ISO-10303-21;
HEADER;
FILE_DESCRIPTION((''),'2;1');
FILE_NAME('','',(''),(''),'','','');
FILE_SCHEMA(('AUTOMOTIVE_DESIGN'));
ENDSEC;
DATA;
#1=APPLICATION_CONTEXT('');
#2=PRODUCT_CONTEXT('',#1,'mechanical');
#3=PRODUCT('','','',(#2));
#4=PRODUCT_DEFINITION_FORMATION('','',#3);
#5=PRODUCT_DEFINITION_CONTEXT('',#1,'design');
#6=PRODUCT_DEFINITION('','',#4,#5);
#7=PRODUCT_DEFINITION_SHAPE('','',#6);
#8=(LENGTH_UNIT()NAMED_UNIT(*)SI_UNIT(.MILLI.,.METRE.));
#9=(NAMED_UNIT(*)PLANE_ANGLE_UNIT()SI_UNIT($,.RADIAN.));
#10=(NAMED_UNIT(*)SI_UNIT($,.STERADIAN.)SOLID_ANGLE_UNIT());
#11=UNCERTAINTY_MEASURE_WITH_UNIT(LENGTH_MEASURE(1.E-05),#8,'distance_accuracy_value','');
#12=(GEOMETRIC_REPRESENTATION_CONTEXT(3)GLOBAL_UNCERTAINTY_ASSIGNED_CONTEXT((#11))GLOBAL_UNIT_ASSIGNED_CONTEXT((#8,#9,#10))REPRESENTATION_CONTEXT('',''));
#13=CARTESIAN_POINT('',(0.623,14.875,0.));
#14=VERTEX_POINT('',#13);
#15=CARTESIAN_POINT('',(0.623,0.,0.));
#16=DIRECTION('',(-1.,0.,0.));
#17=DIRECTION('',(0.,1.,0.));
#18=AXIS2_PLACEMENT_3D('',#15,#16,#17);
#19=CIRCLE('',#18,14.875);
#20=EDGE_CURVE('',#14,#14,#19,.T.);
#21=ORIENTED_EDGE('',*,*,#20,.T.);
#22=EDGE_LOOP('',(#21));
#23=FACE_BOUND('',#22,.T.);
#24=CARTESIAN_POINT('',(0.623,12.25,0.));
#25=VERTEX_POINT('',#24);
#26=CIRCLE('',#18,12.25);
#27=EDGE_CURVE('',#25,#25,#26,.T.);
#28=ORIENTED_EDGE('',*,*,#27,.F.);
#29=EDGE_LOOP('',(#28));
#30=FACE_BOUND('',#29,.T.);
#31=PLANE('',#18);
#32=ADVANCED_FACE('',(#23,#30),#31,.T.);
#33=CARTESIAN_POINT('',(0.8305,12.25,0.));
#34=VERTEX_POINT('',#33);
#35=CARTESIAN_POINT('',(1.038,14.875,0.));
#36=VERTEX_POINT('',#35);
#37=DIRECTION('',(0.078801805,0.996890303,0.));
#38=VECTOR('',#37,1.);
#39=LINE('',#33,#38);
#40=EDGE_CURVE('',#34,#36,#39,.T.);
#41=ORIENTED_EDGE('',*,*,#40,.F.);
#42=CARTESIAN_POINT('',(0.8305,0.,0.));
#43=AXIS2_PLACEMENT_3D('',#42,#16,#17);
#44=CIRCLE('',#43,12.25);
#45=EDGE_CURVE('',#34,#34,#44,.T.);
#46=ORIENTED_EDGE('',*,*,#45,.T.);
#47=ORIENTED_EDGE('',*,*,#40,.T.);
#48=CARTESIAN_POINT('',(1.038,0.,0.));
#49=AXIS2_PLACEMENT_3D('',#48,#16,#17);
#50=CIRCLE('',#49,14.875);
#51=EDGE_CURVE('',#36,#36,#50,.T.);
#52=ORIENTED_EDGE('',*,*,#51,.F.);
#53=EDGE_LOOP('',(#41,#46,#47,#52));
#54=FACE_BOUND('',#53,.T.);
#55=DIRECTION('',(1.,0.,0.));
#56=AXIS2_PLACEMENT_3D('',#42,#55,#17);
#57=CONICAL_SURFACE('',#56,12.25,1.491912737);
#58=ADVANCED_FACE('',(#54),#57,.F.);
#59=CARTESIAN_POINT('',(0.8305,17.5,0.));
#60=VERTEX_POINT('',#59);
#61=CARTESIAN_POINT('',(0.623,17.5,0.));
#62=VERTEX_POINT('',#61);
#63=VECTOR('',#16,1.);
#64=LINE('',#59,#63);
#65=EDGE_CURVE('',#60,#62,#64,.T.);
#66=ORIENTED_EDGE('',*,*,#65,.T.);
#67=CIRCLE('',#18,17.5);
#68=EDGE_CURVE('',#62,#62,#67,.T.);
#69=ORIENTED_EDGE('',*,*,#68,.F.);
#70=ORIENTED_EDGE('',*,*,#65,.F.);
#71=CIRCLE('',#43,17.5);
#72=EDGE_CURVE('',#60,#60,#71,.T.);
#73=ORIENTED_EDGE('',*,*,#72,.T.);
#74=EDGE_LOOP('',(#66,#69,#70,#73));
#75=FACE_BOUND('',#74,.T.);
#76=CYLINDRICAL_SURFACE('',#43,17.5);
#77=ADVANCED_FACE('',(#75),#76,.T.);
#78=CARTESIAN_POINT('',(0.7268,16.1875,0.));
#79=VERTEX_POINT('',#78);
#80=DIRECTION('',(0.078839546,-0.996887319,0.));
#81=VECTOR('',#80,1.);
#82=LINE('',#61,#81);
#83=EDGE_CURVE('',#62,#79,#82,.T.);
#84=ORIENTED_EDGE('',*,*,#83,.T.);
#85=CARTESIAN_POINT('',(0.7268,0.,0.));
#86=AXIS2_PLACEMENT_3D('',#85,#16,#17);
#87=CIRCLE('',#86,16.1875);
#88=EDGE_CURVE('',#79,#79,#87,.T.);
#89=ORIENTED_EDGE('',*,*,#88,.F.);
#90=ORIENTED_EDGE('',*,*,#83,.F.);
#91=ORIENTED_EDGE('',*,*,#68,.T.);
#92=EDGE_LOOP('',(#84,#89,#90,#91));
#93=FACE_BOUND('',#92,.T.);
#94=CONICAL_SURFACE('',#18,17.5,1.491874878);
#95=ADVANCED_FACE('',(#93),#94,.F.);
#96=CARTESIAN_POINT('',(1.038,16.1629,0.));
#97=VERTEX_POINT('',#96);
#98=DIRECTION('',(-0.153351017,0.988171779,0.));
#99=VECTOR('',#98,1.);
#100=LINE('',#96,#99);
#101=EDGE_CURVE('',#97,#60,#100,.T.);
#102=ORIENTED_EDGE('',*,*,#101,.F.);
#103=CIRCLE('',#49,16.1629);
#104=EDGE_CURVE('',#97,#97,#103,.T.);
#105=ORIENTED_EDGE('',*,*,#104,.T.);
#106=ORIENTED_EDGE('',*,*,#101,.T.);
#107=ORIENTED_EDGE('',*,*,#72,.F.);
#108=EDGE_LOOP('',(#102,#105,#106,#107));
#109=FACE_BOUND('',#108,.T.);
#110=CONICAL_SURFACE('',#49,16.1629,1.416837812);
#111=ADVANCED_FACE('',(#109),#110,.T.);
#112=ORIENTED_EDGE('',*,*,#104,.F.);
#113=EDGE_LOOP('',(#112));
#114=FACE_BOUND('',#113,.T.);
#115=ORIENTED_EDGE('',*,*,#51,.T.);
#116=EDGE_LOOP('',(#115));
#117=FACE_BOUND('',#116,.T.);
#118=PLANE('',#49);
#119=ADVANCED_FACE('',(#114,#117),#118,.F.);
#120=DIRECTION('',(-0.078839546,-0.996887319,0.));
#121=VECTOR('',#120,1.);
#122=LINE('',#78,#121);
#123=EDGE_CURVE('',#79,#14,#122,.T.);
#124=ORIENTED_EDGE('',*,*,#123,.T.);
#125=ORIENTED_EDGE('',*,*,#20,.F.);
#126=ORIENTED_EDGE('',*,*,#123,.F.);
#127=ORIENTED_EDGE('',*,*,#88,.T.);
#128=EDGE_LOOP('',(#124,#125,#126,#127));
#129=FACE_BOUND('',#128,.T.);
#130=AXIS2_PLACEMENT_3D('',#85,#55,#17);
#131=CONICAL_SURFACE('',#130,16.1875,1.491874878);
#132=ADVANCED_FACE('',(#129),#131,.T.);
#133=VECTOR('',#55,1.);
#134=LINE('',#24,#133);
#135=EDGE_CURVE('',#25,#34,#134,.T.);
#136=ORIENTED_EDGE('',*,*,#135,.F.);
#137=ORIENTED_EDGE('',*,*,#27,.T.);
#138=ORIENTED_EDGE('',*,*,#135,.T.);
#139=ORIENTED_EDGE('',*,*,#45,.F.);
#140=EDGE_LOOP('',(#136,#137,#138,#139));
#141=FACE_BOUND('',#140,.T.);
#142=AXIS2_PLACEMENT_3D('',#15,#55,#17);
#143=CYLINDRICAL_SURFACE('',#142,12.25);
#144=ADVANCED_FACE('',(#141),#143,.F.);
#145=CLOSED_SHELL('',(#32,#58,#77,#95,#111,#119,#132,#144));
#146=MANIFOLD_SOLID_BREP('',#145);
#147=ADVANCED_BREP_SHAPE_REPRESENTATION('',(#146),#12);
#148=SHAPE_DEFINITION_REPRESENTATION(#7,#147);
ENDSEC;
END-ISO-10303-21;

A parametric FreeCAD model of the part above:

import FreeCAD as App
import Part
import Sketcher

V = App.Vector
Q = App.Units.Quantity

doc = App.newDocument("Part")
body = doc.addObject("PartDesign::Body", "Body")

# Sketch on XY plane
sketch1 = body.newObject("Sketcher::SketchObject", "Sketch")
sketch1.AttachmentSupport = (doc.getObject("XY_Plane"), [""])
sketch1.MapMode = "FlatFace"
sketch1.addGeometry(Part.LineSegment(V(0.62, 14.88, 0), V(0.62, 12.25, 0)), False)
sketch1.addGeometry(Part.LineSegment(V(0.62, 12.25, 0), V(0.83, 12.25, 0)), False)
sketch1.addGeometry(Part.LineSegment(V(0.83, 12.25, 0), V(1.04, 14.88, 0)), False)
sketch1.addGeometry(Part.LineSegment(V(1.04, 14.88, 0), V(1.04, 16.16, 0)), False)
sketch1.addGeometry(Part.LineSegment(V(1.04, 16.16, 0), V(0.83, 17.5, 0)), False)
sketch1.addGeometry(Part.LineSegment(V(0.83, 17.5, 0), V(0.62, 17.5, 0)), False)
sketch1.addGeometry(Part.LineSegment(V(0.62, 17.5, 0), V(0.73, 16.19, 0)), False)
sketch1.addGeometry(Part.LineSegment(V(0.73, 16.19, 0), V(0.62, 14.88, 0)), False)
sketch1.addConstraint(Sketcher.Constraint("Coincident", 0, 2, 1, 1))
sketch1.addConstraint(Sketcher.Constraint("Coincident", 1, 2, 2, 1))
sketch1.addConstraint(Sketcher.Constraint("Coincident", 2, 2, 3, 1))
sketch1.addConstraint(Sketcher.Constraint("Coincident", 3, 2, 4, 1))
sketch1.addConstraint(Sketcher.Constraint("Coincident", 4, 2, 5, 1))
sketch1.addConstraint(Sketcher.Constraint("Coincident", 5, 2, 6, 1))
sketch1.addConstraint(Sketcher.Constraint("Coincident", 6, 2, 7, 1))
sketch1.addConstraint(Sketcher.Constraint("Coincident", 7, 2, 0, 1))
sketch1.addConstraint(Sketcher.Constraint("Vertical", 0))
sketch1.addConstraint(Sketcher.Constraint("Horizontal", 1))
sketch1.addConstraint(Sketcher.Constraint("Vertical", 3))
sketch1.addConstraint(Sketcher.Constraint("Horizontal", 5))
sketch1.addConstraint(Sketcher.Constraint("Parallel", 2, 7))
sketch1.addConstraint(Sketcher.Constraint("Horizontal", 2, 2, 7, 2))
sketch1.addConstraint(Sketcher.Constraint("Vertical", 1, 2, 4, 2))
sketch1.addConstraint(Sketcher.Constraint("Vertical", 0, 2, 5, 2))
sketch1.addConstraint(Sketcher.Constraint("Equal", 6, 7))
sketch1.addConstraint(Sketcher.Constraint("DistanceY", -1, 1, 4, 2, Q("17.5 mm")))
sketch1.addConstraint(Sketcher.Constraint("Angle", 2, Q("85.4803 deg")))
sketch1.addConstraint(Sketcher.Constraint("Angle", 4, Q("98.8212 deg")))
sketch1.addConstraint(Sketcher.Constraint("DistanceY", 0, 2, 0, 1, Q("2.625 mm")))
sketch1.addConstraint(Sketcher.Constraint("DistanceY", 3, 1, 3, 2, Q("1.288 mm")))
sketch1.addConstraint(Sketcher.Constraint("DistanceX", 1, 1, 1, 2, Q("0.2075 mm")))
sketch1.addConstraint(Sketcher.Constraint("DistanceX", -1, 1, 0, 2, Q("0.623 mm")))
revolution = body.newObject("PartDesign::Revolution", "Revolution")
revolution.Profile = sketch1
revolution.ReferenceAxis = (sketch1, ["H_Axis"])
revolution.Angle = 360

doc.recompute()
